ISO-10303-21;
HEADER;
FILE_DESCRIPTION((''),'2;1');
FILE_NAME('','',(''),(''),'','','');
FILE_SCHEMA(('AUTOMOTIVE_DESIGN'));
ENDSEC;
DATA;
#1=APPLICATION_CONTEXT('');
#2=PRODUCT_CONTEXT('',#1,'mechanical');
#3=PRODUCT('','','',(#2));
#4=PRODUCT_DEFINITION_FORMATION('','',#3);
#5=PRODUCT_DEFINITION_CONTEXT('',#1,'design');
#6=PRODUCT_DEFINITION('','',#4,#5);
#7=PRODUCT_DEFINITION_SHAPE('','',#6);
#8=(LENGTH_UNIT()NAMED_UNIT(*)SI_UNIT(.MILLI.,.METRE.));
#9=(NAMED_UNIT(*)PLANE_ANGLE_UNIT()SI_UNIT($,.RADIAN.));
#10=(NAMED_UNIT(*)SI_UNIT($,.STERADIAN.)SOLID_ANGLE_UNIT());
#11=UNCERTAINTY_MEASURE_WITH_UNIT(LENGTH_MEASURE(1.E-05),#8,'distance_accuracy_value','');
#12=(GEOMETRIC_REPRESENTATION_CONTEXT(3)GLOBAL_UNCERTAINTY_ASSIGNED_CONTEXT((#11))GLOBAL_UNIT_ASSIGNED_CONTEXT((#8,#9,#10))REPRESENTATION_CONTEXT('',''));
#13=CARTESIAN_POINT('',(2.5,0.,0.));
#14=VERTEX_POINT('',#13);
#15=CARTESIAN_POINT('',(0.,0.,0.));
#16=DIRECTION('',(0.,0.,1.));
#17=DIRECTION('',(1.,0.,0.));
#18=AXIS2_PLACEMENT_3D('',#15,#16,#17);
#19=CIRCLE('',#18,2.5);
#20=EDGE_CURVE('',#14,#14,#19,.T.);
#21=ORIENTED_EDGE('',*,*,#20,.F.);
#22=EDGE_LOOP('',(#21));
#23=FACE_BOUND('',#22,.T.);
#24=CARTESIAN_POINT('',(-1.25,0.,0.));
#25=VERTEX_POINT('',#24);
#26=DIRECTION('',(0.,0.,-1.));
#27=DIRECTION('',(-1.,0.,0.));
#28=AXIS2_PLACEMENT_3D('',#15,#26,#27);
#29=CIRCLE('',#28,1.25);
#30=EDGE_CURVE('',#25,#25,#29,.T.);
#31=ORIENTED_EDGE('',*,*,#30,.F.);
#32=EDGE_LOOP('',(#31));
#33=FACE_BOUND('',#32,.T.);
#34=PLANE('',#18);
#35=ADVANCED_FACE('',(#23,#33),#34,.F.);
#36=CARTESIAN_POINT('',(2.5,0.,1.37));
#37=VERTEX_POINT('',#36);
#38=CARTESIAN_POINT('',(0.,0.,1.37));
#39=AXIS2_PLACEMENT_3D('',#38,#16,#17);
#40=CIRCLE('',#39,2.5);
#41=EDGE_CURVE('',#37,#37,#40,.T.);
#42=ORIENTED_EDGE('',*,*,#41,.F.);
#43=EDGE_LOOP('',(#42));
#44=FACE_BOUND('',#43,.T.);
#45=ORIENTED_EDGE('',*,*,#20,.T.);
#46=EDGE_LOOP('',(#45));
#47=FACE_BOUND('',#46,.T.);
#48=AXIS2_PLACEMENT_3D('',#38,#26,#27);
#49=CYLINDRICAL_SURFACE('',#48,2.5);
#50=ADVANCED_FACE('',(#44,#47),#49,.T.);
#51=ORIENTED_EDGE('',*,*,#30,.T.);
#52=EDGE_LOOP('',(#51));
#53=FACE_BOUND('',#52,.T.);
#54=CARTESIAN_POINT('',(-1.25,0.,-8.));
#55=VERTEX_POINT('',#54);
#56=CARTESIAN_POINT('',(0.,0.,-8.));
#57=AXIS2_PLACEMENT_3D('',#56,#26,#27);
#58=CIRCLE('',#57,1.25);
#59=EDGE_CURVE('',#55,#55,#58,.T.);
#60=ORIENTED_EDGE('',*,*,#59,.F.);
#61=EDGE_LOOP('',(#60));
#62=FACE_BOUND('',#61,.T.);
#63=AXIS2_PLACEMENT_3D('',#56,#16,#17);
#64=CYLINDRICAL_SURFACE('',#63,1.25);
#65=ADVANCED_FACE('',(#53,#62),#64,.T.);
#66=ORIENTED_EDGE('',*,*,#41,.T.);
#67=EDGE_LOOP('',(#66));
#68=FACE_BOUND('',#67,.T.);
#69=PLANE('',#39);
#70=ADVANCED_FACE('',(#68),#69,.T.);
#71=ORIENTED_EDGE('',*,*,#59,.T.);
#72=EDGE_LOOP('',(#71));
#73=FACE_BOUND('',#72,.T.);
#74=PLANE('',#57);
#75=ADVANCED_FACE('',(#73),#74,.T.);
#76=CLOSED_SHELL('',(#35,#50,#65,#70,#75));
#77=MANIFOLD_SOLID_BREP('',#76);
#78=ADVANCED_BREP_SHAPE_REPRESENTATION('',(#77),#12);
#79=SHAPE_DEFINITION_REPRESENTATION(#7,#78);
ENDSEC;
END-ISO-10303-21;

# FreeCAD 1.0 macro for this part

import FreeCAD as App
import Part
import Sketcher

V = App.Vector

doc = App.newDocument("Part")
params = doc.addObject("Spreadsheet::Sheet", "Params")
for row, (alias, value) in enumerate([
    ("sketch1_diameter", "5 mm"),
    ("pad1_length", "1.37 mm"),
    ("sketch2_diameter", "2.5 mm"),
    ("pad2_length", "8 mm"),
], start=1):
    params.set(f"A{row}", alias)
    params.set(f"B{row}", "=" + value)
    params.setAlias(f"B{row}", alias)

body = doc.addObject("PartDesign::Body", "Body")

# Sketch on XY plane
sketch1 = doc.addObject("Sketcher::SketchObject", "Sketch")
body.addObject(sketch1)
sketch1.AttachmentSupport = (doc.XY_Plane, [""])
sketch1.MapMode = "FlatFace"
sketch1.addGeometry(Part.Circle(V(0, 0, 0), V(0, 0, 1), 2.5), False)
sketch1.addConstraint([
    Sketcher.Constraint("Coincident", 0, 3, -1, 1),
    Sketcher.Constraint("Diameter", 0, 5.0),
])
sketch1.setExpression("Constraints[1]", "Params.sketch1_diameter")
pad1 = doc.addObject("PartDesign::Pad", "Pad")
body.addObject(pad1)
pad1.Profile = sketch1
pad1.setExpression("Length", "Params.pad1_length")

# Sketch on XY plane
sketch2 = doc.addObject("Sketcher::SketchObject", "Sketch001")
body.addObject(sketch2)
sketch2.AttachmentSupport = (doc.XY_Plane, [""])
sketch2.MapMode = "FlatFace"
sketch2.addGeometry(Part.Circle(V(0, 0, 0), V(0, 0, 1), 1.2), False)
sketch2.addConstraint([
    Sketcher.Constraint("Coincident", 0, 3, -1, 1),
    Sketcher.Constraint("Diameter", 0, 2.5),
])
sketch2.setExpression("Constraints[1]", "Params.sketch2_diameter")
pad2 = doc.addObject("PartDesign::Pad", "Pad001")
body.addObject(pad2)
pad2.Profile = sketch2
pad2.setExpression("Length", "Params.pad2_length")
pad2.Reversed = True

doc.recompute()
